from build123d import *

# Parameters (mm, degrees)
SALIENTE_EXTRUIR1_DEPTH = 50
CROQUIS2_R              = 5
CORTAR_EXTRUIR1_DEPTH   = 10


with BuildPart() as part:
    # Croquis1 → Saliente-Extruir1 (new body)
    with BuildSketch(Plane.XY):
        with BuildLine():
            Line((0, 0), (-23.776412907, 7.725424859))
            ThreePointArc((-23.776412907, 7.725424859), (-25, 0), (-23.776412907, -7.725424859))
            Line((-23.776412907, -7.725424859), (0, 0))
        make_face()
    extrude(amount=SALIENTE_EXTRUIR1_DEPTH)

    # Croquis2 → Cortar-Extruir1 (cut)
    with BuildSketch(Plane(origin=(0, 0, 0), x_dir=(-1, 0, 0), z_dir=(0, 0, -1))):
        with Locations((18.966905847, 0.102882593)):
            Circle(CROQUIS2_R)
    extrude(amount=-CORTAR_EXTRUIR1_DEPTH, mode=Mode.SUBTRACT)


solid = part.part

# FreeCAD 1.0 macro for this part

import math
import FreeCAD as App
import Part
import Sketcher
from FreeCAD import Vector
Q = App.Units.Quantity

doc = App.newDocument("Part")
body = doc.addObject("PartDesign::Body", "Body")

# Sketch on XY plane
sketch1 = doc.addObject("Sketcher::SketchObject", "Sketch")
body.addObject(sketch1)
sketch1.AttachmentSupport = (doc.XY_Plane, [""])
sketch1.MapMode = "FlatFace"
sketch1.addGeometry(Part.LineSegment(Vector(0, 0, 0), Vector(-23.776413, 7.725425, 0)), False)
sketch1.addGeometry(Part.ArcOfCircle(Part.Circle(Vector(0, 0, 0), Vector(0, 0, 1), 25), math.radians(162), math.radians(198)), False)
sketch1.addGeometry(Part.LineSegment(Vector(-23.776413, -7.725425, 0), Vector(0, 0, 0)), False)
sketch1.addConstraint(Sketcher.Constraint("Coincident", 0, 2, 1, 1))
sketch1.addConstraint(Sketcher.Constraint("Coincident", 1, 2, 2, 1))
sketch1.addConstraint(Sketcher.Constraint("Coincident", 2, 2, 0, 1))
sketch1.addConstraint(Sketcher.Constraint("Coincident", 1, 3, -1, 1))
sketch1.addConstraint(Sketcher.Constraint("Coincident", 2, 2, -1, 1))
sketch1.addConstraint(Sketcher.Constraint("Vertical", 0, 2, 1, 2))
sketch1.addConstraint(Sketcher.Constraint("Radius", 1, Q("25 mm")))
sketch1.addConstraint(Sketcher.Constraint("Angle", 0, Q("162 deg")))
pad1 = doc.addObject("PartDesign::Pad", "Pad")
body.addObject(pad1)
pad1.Profile = sketch1
pad1.Length = 50

# Sketch on XY plane
sketch2 = doc.addObject("Sketcher::SketchObject", "Sketch001")
body.addObject(sketch2)
sketch2.AttachmentSupport = (doc.XY_Plane, [""])
sketch2.MapMode = "FlatFace"
sketch2.addGeometry(Part.Circle(Vector(-18.966906, 0.102883, 0), Vector(0, 0, 1), 5), False)
sketch2.addConstraint(Sketcher.Constraint("Diameter", 0, Q("10 mm")))
sketch2.addConstraint(Sketcher.Constraint("DistanceX", 0, 3, -1, 1, Q("18.966906 mm")))
sketch2.addConstraint(Sketcher.Constraint("DistanceY", -1, 1, 0, 3, Q("0.102883 mm")))
pocket1 = doc.addObject("PartDesign::Pocket", "Pocket")
body.addObject(pocket1)
pocket1.Profile = sketch2
pocket1.Length = 10
pocket1.Reversed = True

doc.recompute()
